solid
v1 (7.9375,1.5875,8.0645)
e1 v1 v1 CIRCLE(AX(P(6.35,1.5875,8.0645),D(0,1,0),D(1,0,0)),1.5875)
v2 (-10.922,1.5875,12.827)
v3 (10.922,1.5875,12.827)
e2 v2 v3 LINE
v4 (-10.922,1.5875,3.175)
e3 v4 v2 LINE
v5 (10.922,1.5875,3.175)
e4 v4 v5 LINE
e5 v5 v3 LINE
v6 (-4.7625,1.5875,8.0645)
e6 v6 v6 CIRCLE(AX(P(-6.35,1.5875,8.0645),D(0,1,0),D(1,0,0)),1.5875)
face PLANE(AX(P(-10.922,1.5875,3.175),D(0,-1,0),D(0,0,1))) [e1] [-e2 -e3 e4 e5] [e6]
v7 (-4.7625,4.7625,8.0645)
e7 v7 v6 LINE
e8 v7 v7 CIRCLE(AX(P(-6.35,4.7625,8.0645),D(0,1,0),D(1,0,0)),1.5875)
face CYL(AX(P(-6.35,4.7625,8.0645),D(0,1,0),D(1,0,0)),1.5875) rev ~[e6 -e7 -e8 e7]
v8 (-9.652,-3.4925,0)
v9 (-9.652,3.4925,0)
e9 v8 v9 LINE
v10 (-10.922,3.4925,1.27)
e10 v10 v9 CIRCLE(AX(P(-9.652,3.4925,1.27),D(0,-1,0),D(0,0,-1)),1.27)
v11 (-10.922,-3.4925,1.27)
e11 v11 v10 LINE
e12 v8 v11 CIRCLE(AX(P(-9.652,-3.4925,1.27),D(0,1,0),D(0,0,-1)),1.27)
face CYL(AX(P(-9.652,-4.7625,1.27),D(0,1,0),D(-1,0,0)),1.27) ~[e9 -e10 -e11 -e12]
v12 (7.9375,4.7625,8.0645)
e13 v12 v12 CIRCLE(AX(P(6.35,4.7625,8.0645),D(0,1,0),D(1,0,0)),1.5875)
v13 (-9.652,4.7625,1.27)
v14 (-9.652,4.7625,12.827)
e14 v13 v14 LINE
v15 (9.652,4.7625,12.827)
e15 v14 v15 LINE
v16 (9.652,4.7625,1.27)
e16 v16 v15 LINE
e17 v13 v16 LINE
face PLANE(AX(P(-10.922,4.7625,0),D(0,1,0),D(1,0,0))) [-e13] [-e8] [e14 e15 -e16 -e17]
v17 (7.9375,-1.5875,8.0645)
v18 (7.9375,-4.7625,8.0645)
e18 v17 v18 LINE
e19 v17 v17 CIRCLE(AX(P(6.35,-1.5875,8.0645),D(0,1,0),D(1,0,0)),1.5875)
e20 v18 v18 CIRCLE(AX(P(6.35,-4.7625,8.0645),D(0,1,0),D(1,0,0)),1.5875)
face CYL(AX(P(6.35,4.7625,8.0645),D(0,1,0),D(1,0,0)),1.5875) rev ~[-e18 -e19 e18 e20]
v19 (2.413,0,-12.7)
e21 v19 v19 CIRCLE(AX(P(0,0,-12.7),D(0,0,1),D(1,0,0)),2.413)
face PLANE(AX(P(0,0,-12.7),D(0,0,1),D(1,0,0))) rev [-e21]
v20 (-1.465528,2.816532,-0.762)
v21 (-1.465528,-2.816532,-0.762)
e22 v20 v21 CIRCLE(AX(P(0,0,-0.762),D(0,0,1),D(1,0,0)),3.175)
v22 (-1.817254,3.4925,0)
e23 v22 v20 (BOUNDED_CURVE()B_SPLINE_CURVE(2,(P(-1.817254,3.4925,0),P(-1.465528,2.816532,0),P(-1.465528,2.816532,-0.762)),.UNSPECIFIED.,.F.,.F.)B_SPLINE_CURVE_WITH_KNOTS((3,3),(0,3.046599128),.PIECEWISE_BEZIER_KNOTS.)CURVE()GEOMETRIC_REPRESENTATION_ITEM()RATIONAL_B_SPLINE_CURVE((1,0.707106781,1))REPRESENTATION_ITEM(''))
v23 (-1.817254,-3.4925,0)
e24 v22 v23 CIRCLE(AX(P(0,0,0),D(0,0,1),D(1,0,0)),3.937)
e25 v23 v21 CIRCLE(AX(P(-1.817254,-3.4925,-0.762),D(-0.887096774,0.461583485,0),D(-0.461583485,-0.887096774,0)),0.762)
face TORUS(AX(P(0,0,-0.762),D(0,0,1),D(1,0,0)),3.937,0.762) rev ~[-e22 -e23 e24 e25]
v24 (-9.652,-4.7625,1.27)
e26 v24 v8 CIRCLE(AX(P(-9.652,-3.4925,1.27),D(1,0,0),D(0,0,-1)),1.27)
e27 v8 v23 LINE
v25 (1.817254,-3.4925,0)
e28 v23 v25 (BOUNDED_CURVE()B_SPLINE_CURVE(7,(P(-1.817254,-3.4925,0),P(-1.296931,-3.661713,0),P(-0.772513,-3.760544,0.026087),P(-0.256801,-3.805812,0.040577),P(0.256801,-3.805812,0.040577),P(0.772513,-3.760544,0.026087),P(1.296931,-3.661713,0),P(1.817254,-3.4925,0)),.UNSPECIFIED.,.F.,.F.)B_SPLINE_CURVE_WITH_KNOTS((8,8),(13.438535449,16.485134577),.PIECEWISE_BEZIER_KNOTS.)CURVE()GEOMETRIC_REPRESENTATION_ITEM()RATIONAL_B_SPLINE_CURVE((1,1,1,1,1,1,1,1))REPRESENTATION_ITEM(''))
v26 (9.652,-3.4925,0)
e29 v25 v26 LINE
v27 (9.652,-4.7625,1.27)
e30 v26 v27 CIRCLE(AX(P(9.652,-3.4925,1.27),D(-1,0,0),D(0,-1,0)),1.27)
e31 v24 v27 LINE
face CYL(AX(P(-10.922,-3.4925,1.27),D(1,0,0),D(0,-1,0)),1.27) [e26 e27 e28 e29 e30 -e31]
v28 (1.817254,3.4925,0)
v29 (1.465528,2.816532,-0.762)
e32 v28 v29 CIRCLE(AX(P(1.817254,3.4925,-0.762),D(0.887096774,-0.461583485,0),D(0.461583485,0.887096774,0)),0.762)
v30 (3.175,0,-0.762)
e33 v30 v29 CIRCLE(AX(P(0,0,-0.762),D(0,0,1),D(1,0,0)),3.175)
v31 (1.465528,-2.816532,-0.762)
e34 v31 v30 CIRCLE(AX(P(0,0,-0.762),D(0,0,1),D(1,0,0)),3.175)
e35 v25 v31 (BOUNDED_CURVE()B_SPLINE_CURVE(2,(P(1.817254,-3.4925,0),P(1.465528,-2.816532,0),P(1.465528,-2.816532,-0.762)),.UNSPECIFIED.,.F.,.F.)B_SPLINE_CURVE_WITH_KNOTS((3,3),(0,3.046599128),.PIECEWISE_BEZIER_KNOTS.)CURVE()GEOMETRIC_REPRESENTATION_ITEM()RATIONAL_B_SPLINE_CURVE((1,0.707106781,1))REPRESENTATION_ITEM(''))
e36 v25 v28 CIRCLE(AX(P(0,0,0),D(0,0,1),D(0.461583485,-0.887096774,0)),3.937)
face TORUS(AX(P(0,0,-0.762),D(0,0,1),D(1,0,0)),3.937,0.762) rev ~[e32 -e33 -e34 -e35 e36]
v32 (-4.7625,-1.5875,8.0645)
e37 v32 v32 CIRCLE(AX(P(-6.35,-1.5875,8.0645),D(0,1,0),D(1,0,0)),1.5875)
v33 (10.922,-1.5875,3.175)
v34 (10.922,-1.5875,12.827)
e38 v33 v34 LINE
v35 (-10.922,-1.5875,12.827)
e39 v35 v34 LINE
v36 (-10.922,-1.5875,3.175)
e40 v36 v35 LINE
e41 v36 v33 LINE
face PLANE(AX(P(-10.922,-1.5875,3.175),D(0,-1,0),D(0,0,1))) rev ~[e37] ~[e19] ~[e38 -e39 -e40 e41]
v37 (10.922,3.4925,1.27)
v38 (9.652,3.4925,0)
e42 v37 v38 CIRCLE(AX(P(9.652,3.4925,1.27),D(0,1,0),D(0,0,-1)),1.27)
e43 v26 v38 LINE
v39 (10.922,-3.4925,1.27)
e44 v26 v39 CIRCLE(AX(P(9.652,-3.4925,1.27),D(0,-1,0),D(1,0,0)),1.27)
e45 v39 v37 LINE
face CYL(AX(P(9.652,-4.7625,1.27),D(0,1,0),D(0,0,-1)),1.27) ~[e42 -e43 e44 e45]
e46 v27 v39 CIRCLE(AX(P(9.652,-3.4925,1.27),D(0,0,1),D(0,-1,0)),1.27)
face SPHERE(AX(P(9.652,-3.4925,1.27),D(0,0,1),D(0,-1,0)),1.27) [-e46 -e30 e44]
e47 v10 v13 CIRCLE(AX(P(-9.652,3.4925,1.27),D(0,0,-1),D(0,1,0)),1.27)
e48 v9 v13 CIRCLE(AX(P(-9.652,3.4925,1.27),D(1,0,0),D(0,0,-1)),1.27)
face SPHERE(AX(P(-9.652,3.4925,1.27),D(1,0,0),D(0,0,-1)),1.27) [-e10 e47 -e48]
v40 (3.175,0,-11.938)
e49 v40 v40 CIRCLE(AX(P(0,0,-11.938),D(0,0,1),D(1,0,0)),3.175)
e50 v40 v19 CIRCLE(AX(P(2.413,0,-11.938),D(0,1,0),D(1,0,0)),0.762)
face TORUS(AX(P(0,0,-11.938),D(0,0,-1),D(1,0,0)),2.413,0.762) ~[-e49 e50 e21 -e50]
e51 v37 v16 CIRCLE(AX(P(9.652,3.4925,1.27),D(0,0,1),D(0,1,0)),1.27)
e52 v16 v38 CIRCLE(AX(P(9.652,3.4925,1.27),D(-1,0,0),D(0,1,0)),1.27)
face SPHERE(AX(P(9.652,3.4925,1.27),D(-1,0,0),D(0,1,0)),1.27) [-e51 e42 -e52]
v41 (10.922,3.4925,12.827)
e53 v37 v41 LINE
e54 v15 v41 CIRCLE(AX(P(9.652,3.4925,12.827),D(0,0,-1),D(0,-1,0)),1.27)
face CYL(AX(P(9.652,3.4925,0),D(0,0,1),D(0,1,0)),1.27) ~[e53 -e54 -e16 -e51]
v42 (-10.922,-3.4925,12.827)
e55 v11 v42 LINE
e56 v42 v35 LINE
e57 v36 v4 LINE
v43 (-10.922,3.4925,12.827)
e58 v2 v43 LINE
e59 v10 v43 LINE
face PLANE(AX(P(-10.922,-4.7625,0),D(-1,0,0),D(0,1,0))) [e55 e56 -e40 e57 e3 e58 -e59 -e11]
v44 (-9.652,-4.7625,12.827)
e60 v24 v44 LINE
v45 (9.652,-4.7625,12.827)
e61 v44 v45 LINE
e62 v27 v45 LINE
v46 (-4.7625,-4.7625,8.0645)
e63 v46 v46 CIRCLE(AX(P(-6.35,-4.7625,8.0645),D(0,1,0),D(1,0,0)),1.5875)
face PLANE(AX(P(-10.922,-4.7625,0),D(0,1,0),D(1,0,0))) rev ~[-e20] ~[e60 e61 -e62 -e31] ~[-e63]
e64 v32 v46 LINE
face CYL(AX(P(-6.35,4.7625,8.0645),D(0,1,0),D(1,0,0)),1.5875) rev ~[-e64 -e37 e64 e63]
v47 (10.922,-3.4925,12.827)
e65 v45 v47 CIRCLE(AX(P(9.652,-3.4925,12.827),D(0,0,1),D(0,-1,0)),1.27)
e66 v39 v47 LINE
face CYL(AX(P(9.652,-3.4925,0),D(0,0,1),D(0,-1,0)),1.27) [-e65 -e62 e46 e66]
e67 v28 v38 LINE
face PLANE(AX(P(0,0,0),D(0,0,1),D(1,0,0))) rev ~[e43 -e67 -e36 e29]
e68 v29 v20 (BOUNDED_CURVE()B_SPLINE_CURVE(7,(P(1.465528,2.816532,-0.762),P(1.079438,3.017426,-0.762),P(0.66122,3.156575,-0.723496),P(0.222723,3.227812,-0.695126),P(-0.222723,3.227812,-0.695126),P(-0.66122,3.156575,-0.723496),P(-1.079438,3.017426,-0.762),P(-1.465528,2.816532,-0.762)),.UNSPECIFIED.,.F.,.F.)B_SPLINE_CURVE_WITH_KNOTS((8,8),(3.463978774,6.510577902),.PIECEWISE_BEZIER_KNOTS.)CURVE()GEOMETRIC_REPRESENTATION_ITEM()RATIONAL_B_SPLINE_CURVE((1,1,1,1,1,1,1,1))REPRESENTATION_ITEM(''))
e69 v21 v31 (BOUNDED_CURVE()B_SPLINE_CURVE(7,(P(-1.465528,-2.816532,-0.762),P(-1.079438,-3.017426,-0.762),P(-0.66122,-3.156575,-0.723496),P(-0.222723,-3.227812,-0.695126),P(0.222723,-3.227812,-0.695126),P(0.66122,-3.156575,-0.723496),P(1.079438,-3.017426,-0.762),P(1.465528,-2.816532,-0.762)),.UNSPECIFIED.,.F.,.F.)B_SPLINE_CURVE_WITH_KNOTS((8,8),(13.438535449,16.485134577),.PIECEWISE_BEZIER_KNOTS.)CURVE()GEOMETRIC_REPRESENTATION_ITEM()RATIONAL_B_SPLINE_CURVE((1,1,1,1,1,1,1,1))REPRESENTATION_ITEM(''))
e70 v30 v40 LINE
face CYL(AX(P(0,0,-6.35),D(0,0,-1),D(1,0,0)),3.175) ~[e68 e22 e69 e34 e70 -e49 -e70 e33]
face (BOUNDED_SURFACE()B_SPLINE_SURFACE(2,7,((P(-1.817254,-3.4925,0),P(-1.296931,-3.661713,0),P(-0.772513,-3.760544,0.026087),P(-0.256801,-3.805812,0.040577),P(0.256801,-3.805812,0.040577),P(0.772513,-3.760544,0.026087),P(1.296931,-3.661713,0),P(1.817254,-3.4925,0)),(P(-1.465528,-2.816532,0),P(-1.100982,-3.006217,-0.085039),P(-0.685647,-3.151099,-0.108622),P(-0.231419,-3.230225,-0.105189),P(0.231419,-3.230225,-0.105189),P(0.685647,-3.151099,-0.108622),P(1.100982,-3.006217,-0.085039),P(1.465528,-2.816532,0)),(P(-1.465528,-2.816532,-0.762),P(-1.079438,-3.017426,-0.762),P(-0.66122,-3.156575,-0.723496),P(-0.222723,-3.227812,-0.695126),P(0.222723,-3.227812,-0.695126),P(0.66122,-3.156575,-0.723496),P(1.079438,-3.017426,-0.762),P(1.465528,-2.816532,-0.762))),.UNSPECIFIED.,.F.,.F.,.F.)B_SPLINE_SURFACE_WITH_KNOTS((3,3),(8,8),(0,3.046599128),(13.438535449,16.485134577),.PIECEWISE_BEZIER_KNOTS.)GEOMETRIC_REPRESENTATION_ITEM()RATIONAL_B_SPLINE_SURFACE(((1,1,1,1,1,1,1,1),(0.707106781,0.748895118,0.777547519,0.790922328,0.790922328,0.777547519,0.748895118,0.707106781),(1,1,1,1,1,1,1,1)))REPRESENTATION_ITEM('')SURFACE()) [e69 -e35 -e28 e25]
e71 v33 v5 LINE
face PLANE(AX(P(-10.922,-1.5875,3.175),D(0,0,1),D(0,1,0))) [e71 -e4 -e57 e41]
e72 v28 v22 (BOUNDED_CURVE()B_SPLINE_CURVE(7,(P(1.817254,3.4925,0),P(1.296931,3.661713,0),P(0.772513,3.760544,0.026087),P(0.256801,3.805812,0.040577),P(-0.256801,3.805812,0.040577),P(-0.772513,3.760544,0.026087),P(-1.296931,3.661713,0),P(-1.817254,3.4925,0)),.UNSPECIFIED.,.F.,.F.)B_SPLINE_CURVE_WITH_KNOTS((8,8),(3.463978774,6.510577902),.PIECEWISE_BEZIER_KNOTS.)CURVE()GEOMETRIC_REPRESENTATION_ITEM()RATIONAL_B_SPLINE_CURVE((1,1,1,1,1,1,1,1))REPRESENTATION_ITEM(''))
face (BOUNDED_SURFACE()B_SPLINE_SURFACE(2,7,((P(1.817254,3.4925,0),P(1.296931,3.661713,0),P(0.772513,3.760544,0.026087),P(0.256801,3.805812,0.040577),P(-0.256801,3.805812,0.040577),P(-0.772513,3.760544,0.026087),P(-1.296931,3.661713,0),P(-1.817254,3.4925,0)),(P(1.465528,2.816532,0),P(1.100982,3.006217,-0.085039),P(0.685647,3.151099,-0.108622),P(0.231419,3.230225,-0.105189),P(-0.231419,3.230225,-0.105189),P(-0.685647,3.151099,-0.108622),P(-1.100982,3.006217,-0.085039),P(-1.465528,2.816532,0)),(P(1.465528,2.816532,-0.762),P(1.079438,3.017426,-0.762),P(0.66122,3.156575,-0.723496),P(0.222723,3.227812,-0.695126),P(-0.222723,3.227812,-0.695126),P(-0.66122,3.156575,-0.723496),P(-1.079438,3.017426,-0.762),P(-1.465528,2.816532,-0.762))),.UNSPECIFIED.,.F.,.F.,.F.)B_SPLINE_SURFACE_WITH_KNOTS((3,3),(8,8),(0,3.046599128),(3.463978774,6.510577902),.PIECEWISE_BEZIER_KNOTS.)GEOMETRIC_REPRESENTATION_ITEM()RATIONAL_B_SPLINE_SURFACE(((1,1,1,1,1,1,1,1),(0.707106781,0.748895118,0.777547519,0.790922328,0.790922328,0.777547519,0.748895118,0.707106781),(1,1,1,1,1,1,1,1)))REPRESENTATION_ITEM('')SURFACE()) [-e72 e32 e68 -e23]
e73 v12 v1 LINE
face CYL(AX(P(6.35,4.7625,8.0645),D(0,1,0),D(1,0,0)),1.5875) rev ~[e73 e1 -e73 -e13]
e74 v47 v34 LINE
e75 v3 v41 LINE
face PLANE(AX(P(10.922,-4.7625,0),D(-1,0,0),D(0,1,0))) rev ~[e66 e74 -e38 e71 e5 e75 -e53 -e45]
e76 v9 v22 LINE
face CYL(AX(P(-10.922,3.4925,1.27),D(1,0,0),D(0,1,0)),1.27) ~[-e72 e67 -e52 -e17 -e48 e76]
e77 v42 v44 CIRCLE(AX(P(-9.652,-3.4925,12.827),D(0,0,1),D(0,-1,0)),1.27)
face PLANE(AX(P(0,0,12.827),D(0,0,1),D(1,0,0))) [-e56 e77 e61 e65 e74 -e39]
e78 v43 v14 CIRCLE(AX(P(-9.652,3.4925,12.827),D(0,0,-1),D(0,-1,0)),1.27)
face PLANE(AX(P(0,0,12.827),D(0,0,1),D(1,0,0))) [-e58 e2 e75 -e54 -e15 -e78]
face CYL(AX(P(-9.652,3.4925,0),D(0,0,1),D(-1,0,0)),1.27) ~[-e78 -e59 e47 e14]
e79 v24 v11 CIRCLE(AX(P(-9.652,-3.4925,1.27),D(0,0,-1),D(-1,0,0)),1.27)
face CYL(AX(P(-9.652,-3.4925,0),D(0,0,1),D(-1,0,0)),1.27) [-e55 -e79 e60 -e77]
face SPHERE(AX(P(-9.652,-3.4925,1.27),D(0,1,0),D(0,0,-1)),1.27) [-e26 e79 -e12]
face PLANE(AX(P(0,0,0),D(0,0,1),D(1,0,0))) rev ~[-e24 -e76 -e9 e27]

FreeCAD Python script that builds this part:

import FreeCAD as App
import Part
import Sketcher
Q = App.Units.Quantity


def edges_at(feature, points):
    """Names of the edges that pass closest to the given points."""
    edges = feature.Shape.Edges
    near = lambda p: min(range(len(edges)), key=lambda i: edges[i].distToShape(Part.Vertex(*p))[0])
    return sorted({f"Edge{near(p) + 1}" for p in points})


def add_polygon(sketch, points):
    """Adds a closed chain of lines whose ends are joined by coincident constraints."""
    first, n = sketch.GeometryCount, len(points)
    for a, b in zip(points, points[1:] + points[:1]):
        sketch.addGeometry(Part.LineSegment(App.Vector(*a, 0), App.Vector(*b, 0)), False)
    for i in range(n):
        sketch.addConstraint(Sketcher.Constraint("Coincident", first + i, 2, first + (i + 1) % n, 1))

doc = App.newDocument("Part")
params = doc.addObject("Spreadsheet::Sheet", "Params")
for row, (alias, value) in enumerate([
    ("sketch1_height", "0.5 in"),
    ("sketch1_width", "0.125 in"),
    ("revolution_angle", "360 deg"),
    ("sketch2_width", "0.86 in"),
    ("sketch2_height", "0.375 in"),
    ("pad1_length", "0.505 in"),
    ("fillet_radius", "0.05 in"),
    ("sketch3_height", "0.38 in"),
    ("sketch3_width", "0.125 in"),
    ("sketch4_diameter", "0.125 in"),
    ("fillet2_radius", "0.03 in"),
], start=1):
    params.set(f"A{row}", alias)
    params.set(f"B{row}", "=" + value)
    params.setAlias(f"B{row}", alias)

body = doc.addObject("PartDesign::Body", "Body")

# Sketch on XZ plane
sketch1 = body.newObject("Sketcher::SketchObject", "Sketch")
sketch1.AttachmentSupport = (doc.getObject("XZ_Plane"), [""])
sketch1.MapMode = "FlatFace"
add_polygon(sketch1, [(0, -12.7), (0, 0), (3.2, 0), (3.2, -12.7)])  # lines 0-3
sketch1.addConstraint(Sketcher.Constraint("Vertical", 0))
sketch1.addConstraint(Sketcher.Constraint("Horizontal", 1))
sketch1.addConstraint(Sketcher.Constraint("Vertical", 2))
sketch1.addConstraint(Sketcher.Constraint("Horizontal", 3))
sketch1.addConstraint(Sketcher.Constraint("Coincident", 0, 2, -1, 1))
sketch1.addConstraint(Sketcher.Constraint("DistanceY", 0, 1, 0, 2, Q("0.5 in")))
sketch1.addConstraint(Sketcher.Constraint("DistanceX", 1, 1, 1, 2, Q("0.125 in")))
sketch1.setExpression("Constraints[9]", "Params.sketch1_height")
sketch1.setExpression("Constraints[10]", "Params.sketch1_width")
revolution = body.newObject("PartDesign::Revolution", "Revolution")
revolution.Profile = sketch1
revolution.ReferenceAxis = (sketch1, ["V_Axis"])
revolution.setExpression("Angle", "Params.revolution_angle")

# Sketch on XY plane
sketch2 = body.newObject("Sketcher::SketchObject", "Sketch001")
sketch2.AttachmentSupport = (doc.getObject("XY_Plane"), [""])
sketch2.MapMode = "FlatFace"
add_polygon(sketch2, [(-11, 5), (-11, -5), (11, -5), (11, 5)])  # lines 0-3
sketch2.addConstraint(Sketcher.Constraint("Vertical", 0))
sketch2.addConstraint(Sketcher.Constraint("Horizontal", 1))
sketch2.addConstraint(Sketcher.Constraint("Vertical", 2))
sketch2.addConstraint(Sketcher.Constraint("Horizontal", 3))
sketch2.addConstraint(Sketcher.Constraint("Symmetric", 0, 2, 2, 2, -1, 1))
sketch2.addConstraint(Sketcher.Constraint("DistanceX", 1, 1, 1, 2, Q("0.86 in")))
sketch2.addConstraint(Sketcher.Constraint("DistanceY", 0, 2, 0, 1, Q("0.375 in")))
sketch2.setExpression("Constraints[9]", "Params.sketch2_width")
sketch2.setExpression("Constraints[10]", "Params.sketch2_height")
pad1 = body.newObject("PartDesign::Pad", "Pad")
pad1.Profile = sketch2
pad1.setExpression("Length", "Params.pad1_length")
doc.recompute()

fillet = body.newObject("PartDesign::Fillet", "Fillet")
fillet.Base = (pad1, edges_at(pad1, [
    (10.922, -4.763, 6.413),
    (0, 4.763, 0),
    (10.922, 4.763, 6.413),
    (-10.922, 0, 0),
    (-10.922, 4.763, 6.413),
    (0, -4.763, 0),
    (-10.922, -4.763, 6.413),
    (10.922, 0, 0),
]))
fillet.setExpression("Radius", "Params.fillet_radius")

# Sketch on YZ plane
sketch3 = body.newObject("Sketcher::SketchObject", "Sketch002")
sketch3.AttachmentSupport = (doc.getObject("YZ_Plane"), [""])
sketch3.MapMode = "FlatFace"
sketch3.AttachmentOffset = App.Placement(App.Vector(0, 0, -0.43 * 25.4), App.Rotation())
add_polygon(sketch3, [(1.6, 3.2), (-1.6, 3.2), (-1.6, 12.8), (1.6, 12.8)])  # lines 0-3
sketch3.addConstraint(Sketcher.Constraint("Horizontal", 0))
sketch3.addConstraint(Sketcher.Constraint("Vertical", 1))
sketch3.addConstraint(Sketcher.Constraint("Horizontal", 2))
sketch3.addConstraint(Sketcher.Constraint("Vertical", 3))
sketch3.addConstraint(Sketcher.Constraint("DistanceY", 1, 1, 1, 2, Q("0.38 in")))
sketch3.addConstraint(Sketcher.Constraint("DistanceX", 0, 2, 0, 1, Q("0.125 in")))
sketch3.addConstraint(Sketcher.Constraint("DistanceX", 0, 2, -1, 1, Q("0.0625 in")))
sketch3.addConstraint(Sketcher.Constraint("DistanceY", -1, 1, 0, 2, Q("0.125 in")))
sketch3.setExpression("Constraints[8]", "Params.sketch3_height")
sketch3.setExpression("Constraints[9]", "Params.sketch3_width")
pocket1 = body.newObject("PartDesign::Pocket", "Pocket")
pocket1.Profile = sketch3
pocket1.Type = "ThroughAll"
pocket1.Reversed = True

# Sketch on XZ plane
sketch4 = body.newObject("Sketcher::SketchObject", "Sketch003")
sketch4.AttachmentSupport = (doc.getObject("XZ_Plane"), [""])
sketch4.MapMode = "FlatFace"
sketch4.AttachmentOffset = App.Placement(App.Vector(0, 0, -0.1875 * 25.4), App.Rotation())
sketch4.addGeometry(Part.Circle(App.Vector(-6.3, 8.1, 0), App.Vector(0, 0, 1), 1.6), False)
sketch4.addGeometry(Part.Circle(App.Vector(6.3, 8.1, 0), App.Vector(0, 0, 1), 1.6), False)
sketch4.addConstraint(Sketcher.Constraint("Equal", 0, 1))
sketch4.addConstraint(Sketcher.Constraint("Symmetric", 0, 3, 1, 3, -2))
sketch4.addConstraint(Sketcher.Constraint("Diameter", 0, Q("0.125 in")))
sketch4.addConstraint(Sketcher.Constraint("DistanceX", 0, 3, 1, 3, Q("0.5 in")))
sketch4.addConstraint(Sketcher.Constraint("DistanceY", -1, 1, 0, 3, Q("0.3175 in")))
sketch4.setExpression("Constraints[2]", "Params.sketch4_diameter")
pocket2 = body.newObject("PartDesign::Pocket", "Pocket001")
pocket2.Profile = sketch4
pocket2.Type = "ThroughAll"
pocket2.Reversed = True
doc.recompute()

fillet2 = body.newObject("PartDesign::Fillet", "Fillet001")
fillet2.Base = (pocket2, edges_at(pocket2, [(-3.175, 0, 0), (-3.175, 0, -12.7)]))
fillet2.setExpression("Radius", "Params.fillet2_radius")

doc.recompute()
